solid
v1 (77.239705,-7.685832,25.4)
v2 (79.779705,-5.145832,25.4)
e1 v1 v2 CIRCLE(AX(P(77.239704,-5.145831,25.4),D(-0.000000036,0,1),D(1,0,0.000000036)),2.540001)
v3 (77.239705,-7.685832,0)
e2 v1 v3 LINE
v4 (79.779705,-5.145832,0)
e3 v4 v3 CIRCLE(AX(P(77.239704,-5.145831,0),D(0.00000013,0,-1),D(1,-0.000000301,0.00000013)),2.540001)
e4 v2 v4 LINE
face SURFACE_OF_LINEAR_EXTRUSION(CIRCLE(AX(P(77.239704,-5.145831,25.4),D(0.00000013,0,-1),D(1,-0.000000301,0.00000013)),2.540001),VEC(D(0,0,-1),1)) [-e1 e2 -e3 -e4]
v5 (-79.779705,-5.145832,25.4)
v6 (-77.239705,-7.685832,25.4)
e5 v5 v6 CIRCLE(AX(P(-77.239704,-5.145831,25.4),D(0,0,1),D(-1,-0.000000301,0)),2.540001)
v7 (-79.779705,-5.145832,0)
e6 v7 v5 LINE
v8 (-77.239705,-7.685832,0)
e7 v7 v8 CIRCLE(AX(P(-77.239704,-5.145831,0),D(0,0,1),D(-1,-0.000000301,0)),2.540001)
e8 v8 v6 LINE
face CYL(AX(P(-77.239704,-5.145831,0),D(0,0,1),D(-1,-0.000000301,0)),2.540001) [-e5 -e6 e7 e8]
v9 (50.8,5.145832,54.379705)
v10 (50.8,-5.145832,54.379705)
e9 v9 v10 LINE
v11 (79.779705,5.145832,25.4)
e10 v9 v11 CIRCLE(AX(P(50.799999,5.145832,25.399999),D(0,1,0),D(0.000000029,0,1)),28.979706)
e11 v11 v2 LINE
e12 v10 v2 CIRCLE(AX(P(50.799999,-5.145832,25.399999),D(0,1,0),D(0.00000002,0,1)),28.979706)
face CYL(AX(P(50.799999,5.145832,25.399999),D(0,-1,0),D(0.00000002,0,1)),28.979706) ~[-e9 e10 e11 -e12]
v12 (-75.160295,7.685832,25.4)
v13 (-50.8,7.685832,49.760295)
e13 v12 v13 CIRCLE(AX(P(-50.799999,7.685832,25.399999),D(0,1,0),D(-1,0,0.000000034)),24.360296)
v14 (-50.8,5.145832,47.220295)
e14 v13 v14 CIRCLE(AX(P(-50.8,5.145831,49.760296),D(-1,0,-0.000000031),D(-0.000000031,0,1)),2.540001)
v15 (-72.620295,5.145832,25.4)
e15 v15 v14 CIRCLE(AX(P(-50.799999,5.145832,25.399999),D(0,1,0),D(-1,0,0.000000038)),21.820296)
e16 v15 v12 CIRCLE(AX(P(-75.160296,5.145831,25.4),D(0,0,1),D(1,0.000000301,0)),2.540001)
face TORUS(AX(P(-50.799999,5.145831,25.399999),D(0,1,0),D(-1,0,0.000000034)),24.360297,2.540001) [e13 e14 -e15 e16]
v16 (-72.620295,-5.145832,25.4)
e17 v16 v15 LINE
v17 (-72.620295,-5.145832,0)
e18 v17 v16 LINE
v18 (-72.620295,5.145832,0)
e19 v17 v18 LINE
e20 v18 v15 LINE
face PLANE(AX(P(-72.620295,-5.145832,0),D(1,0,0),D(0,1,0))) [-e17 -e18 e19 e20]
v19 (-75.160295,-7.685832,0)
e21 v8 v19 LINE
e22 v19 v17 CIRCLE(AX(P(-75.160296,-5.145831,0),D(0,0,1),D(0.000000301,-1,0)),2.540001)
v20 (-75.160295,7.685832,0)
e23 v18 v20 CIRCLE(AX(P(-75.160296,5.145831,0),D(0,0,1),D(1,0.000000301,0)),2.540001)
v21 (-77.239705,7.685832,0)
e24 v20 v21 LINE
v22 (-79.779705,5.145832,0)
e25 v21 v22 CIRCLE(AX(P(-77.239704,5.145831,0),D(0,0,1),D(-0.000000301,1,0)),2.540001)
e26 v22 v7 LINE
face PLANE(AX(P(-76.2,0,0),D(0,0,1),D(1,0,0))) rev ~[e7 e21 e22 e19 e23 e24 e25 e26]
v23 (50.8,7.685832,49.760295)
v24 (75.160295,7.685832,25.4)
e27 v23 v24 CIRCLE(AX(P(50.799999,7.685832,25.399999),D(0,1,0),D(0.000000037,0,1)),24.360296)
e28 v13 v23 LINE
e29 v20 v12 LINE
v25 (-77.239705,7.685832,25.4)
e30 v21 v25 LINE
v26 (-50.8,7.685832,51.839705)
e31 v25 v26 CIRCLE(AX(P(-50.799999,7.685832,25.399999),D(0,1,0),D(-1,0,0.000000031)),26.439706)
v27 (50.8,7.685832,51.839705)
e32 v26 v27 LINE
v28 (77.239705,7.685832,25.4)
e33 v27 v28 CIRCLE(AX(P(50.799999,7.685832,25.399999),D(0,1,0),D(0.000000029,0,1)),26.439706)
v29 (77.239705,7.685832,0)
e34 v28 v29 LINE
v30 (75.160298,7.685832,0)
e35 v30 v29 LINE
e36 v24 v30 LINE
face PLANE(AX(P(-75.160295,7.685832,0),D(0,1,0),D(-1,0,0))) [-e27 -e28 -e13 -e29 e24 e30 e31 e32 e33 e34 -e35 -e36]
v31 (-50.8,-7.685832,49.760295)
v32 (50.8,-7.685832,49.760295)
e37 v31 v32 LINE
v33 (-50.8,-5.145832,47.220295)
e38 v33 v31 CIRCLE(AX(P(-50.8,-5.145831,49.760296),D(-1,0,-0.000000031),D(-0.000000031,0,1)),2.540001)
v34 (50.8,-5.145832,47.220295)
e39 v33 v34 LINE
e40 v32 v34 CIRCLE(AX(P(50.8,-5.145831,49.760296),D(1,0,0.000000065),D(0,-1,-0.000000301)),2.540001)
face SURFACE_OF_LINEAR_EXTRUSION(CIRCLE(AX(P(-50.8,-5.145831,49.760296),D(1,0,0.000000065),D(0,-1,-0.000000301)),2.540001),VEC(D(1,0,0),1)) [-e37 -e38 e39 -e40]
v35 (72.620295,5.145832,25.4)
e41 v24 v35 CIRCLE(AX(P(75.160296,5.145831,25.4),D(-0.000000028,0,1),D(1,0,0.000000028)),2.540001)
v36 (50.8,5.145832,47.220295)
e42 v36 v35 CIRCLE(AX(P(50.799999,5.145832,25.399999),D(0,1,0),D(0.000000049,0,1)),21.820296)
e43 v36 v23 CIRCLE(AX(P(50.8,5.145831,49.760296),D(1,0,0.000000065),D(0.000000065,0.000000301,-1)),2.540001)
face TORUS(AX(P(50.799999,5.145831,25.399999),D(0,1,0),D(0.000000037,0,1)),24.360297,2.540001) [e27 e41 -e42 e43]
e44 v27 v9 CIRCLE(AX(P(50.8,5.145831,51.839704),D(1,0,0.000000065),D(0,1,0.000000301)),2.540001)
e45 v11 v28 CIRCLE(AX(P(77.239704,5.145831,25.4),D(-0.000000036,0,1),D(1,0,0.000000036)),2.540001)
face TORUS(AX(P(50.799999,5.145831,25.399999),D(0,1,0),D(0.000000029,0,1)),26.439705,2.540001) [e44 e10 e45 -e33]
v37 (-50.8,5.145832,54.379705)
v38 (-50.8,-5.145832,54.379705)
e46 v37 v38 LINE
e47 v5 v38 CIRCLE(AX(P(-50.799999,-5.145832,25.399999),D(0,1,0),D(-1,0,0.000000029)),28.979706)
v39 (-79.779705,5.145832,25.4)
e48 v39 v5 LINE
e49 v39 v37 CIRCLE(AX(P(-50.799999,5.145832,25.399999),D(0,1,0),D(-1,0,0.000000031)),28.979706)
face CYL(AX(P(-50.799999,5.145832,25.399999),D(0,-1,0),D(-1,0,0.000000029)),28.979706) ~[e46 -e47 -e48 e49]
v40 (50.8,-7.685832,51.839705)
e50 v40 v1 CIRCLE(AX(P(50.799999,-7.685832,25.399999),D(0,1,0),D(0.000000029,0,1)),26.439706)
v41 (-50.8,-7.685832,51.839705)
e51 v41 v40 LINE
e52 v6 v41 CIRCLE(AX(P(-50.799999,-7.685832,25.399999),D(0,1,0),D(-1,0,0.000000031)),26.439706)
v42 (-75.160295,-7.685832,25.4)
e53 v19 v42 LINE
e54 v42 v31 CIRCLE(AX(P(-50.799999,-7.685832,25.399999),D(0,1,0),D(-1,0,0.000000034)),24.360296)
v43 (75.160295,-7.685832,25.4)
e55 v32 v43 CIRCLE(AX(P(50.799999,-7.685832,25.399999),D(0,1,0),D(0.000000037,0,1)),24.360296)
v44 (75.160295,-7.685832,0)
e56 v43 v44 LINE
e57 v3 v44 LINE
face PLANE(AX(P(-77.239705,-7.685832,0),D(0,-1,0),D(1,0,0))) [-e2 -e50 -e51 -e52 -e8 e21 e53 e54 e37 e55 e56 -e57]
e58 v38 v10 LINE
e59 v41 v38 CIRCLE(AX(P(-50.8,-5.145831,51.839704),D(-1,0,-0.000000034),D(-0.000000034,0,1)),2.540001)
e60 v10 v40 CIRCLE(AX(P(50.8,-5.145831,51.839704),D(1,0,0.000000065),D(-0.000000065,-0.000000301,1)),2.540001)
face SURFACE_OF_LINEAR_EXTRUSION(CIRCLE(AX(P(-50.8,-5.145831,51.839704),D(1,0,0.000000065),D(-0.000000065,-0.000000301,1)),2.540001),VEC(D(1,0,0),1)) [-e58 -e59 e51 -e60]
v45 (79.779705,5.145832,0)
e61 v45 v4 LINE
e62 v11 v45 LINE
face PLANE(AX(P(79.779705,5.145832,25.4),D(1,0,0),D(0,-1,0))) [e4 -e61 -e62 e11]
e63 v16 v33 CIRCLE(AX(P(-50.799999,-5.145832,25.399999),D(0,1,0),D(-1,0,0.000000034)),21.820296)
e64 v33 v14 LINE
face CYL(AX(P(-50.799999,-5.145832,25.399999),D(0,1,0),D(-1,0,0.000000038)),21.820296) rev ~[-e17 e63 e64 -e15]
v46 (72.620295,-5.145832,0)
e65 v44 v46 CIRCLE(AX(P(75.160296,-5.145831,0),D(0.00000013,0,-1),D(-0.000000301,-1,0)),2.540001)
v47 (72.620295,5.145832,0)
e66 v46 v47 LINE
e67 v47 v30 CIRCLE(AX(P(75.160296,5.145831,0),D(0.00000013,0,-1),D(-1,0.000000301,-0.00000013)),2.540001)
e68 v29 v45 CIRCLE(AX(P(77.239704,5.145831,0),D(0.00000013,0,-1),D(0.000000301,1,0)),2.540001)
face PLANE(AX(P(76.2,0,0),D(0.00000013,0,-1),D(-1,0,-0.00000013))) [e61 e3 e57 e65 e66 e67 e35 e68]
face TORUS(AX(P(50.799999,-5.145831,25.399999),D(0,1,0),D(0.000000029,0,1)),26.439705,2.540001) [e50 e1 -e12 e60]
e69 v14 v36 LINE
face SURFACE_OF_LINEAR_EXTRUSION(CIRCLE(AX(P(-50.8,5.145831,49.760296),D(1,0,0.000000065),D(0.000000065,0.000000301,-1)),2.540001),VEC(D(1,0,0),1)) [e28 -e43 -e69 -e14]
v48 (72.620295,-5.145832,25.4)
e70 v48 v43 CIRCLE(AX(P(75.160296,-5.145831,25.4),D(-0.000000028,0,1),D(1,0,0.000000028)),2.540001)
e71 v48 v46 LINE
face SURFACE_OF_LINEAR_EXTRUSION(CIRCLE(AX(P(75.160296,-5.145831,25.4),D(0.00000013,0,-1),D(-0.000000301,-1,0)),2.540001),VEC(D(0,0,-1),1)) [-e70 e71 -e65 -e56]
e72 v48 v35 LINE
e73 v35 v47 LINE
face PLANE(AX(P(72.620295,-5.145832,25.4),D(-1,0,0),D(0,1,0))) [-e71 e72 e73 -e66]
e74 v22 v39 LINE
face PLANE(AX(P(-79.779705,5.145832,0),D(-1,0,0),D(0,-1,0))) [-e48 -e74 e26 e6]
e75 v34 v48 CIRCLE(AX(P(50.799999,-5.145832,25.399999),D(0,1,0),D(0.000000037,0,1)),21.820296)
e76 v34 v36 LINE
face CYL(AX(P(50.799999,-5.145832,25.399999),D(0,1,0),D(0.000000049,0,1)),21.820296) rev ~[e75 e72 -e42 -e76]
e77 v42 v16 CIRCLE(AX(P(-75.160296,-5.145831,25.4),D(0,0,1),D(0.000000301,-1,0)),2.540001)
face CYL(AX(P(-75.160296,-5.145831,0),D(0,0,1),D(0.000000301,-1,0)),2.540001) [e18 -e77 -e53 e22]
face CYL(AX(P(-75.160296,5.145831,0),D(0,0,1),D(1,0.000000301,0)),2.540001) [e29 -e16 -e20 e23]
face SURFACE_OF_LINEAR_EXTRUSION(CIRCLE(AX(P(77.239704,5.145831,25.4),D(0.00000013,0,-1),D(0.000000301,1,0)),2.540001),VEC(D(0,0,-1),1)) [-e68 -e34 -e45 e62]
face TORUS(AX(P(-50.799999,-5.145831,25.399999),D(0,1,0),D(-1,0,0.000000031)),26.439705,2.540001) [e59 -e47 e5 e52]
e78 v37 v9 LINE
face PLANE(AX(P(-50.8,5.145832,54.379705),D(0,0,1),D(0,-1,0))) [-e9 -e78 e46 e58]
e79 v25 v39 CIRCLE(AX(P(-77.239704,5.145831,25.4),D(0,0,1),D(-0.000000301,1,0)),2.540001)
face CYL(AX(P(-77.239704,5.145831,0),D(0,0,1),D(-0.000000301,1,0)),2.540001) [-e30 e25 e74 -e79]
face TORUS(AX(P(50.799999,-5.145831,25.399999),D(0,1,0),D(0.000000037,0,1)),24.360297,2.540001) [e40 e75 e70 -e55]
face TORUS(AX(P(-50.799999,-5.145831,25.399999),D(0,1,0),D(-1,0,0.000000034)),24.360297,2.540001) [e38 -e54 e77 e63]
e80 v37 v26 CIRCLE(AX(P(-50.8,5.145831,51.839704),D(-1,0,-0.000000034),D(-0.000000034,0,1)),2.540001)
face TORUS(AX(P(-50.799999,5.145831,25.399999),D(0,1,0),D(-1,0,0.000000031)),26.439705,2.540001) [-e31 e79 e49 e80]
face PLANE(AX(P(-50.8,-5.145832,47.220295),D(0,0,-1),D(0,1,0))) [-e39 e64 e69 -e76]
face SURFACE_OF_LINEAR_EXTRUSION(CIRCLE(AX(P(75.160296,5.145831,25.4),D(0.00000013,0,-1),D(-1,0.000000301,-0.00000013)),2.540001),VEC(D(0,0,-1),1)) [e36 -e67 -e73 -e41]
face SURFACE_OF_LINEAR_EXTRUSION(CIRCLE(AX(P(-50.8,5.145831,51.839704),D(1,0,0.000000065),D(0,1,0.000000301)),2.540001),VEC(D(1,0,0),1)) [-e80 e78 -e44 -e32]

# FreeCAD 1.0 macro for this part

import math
import FreeCAD as App
import Part
import Sketcher
from FreeCAD import Vector
Q = App.Units.Quantity

doc = App.newDocument("Part")
params = doc.addObject("Spreadsheet::Sheet", "Params")
for row, (alias, value) in enumerate([
    ("sketch1_radius", "0.1 in"),
    ("sketch2_radius", "1 in"),
    ("sketch2_width", "4 in"),
    ("sketch2_height", "1 in"),
], start=1):
    params.set(f"A{row}", alias)
    params.set(f"B{row}", "=" + value)
    params.setAlias(f"B{row}", alias)

body = doc.addObject("PartDesign::Body", "Body")

# Sketch on XY plane
sketch1 = doc.addObject("Sketcher::SketchObject", "Sketch")
body.addObject(sketch1)
sketch1.AttachmentSupport = (doc.XY_Plane, [""])
sketch1.MapMode = "FlatFace"
sketch1.addGeometry(Part.LineSegment(Vector(-77.239705, -7.685832, 0), Vector(-75.160295, -7.685832, 0)), False)
sketch1.addGeometry(Part.ArcOfCircle(Part.Circle(Vector(-75.160296, -5.145831, 0), Vector(0, 0, 1), 2.540001), math.radians(-89.999983), math.radians(-0.000017)), False)
sketch1.addGeometry(Part.LineSegment(Vector(-72.620295, -5.145832, 0), Vector(-72.620295, 5.145832, 0)), False)
sketch1.addGeometry(Part.ArcOfCircle(Part.Circle(Vector(-75.160296, 5.145831, 0), Vector(0, 0, 1), 2.540001), math.radians(0.000017), math.radians(89.999983)), False)
sketch1.addGeometry(Part.LineSegment(Vector(-75.160295, 7.685832, 0), Vector(-77.239705, 7.685832, 0)), False)
sketch1.addGeometry(Part.ArcOfCircle(Part.Circle(Vector(-77.239704, 5.145831, 0), Vector(0, 0, 1), 2.540001), math.radians(90.000017), math.radians(179.999983)), False)
sketch1.addGeometry(Part.LineSegment(Vector(-79.779705, 5.145832, 0), Vector(-79.779705, -5.145832, 0)), False)
sketch1.addGeometry(Part.ArcOfCircle(Part.Circle(Vector(-77.239704, -5.145831, 0), Vector(0, 0, 1), 2.540001), math.radians(-179.999983), math.radians(-90.000017)), False)
sketch1.addConstraint(Sketcher.Constraint("Tangent", 0, 2, 1, 1))
sketch1.addConstraint(Sketcher.Constraint("Tangent", 1, 2, 2, 1))
sketch1.addConstraint(Sketcher.Constraint("Tangent", 2, 2, 3, 1))
sketch1.addConstraint(Sketcher.Constraint("Tangent", 3, 2, 4, 1))
sketch1.addConstraint(Sketcher.Constraint("Tangent", 4, 2, 5, 1))
sketch1.addConstraint(Sketcher.Constraint("Tangent", 5, 2, 6, 1))
sketch1.addConstraint(Sketcher.Constraint("Tangent", 6, 2, 7, 1))
sketch1.addConstraint(Sketcher.Constraint("Tangent", 7, 2, 0, 1))
sketch1.addConstraint(Sketcher.Constraint("Horizontal", 0))
sketch1.addConstraint(Sketcher.Constraint("Vertical", 2))
sketch1.addConstraint(Sketcher.Constraint("Horizontal", 4))
sketch1.addConstraint(Sketcher.Constraint("Vertical", 6))
sketch1.addConstraint(Sketcher.Constraint("Equal", 1, 3))
sketch1.addConstraint(Sketcher.Constraint("Equal", 3, 5))
sketch1.addConstraint(Sketcher.Constraint("Equal", 5, 7))
sketch1.addConstraint(Sketcher.Constraint("Radius", 1, Q("0.1 in")))
sketch1.addConstraint(Sketcher.Constraint("DistanceX", 0, 1, 0, 2, Q("2.07941 mm")))
sketch1.addConstraint(Sketcher.Constraint("DistanceY", 2, 1, 2, 2, Q("10.291664 mm")))
sketch1.addConstraint(Sketcher.Constraint("DistanceY", 1, 3, -1, 1, Q("5.145831 mm")))
sketch1.addConstraint(Sketcher.Constraint("DistanceX", 1, 3, -1, 1, Q("75.160296 mm")))
sketch1.setExpression("Constraints[15]", "Params.sketch1_radius")

# Sketch on XZ plane
sketch2 = doc.addObject("Sketcher::SketchObject", "Sketch001")
body.addObject(sketch2)
sketch2.AttachmentSupport = (doc.XZ_Plane, [""])
sketch2.MapMode = "FlatFace"
sketch2.addGeometry(Part.LineSegment(Vector(-76.2, 0, 0), Vector(-76.2, 25.4, 0)), False)
sketch2.addGeometry(Part.ArcOfCircle(Part.Circle(Vector(-50.799999, 25.399999, 0), Vector(0, 0, 1), 25.400001), math.radians(90.000002), math.radians(179.999998)), False)
sketch2.addGeometry(Part.LineSegment(Vector(-50.8, 50.8, 0), Vector(50.8, 50.8, 0)), False)
sketch2.addGeometry(Part.ArcOfCircle(Part.Circle(Vector(50.799999, 25.399999, 0), Vector(0, 0, 1), 25.400001), math.radians(0.000002), math.radians(89.999998)), False)
sketch2.addGeometry(Part.LineSegment(Vector(76.2, 25.4, 0), Vector(76.2, 0, 0)), False)
sketch2.addConstraint(Sketcher.Constraint("Tangent", 0, 2, 1, 2))
sketch2.addConstraint(Sketcher.Constraint("Tangent", 1, 1, 2, 1))
sketch2.addConstraint(Sketcher.Constraint("Tangent", 2, 2, 3, 2))
sketch2.addConstraint(Sketcher.Constraint("Tangent", 3, 1, 4, 1))
sketch2.addConstraint(Sketcher.Constraint("Vertical", 0))
sketch2.addConstraint(Sketcher.Constraint("Horizontal", 2))
sketch2.addConstraint(Sketcher.Constraint("Vertical", 4))
sketch2.addConstraint(Sketcher.Constraint("Equal", 1, 3))
sketch2.addConstraint(Sketcher.Constraint("Symmetric", 0, 1, 4, 2, -1, 1))
sketch2.addConstraint(Sketcher.Constraint("PointOnObject", 0, 1, -1))
sketch2.addConstraint(Sketcher.Constraint("Radius", 1, Q("1 in")))
sketch2.addConstraint(Sketcher.Constraint("DistanceX", 2, 1, 2, 2, Q("4 in")))
sketch2.addConstraint(Sketcher.Constraint("DistanceY", 0, 1, 0, 2, Q("1 in")))
sketch2.setExpression("Constraints[10]", "Params.sketch2_radius")
sketch2.setExpression("Constraints[11]", "Params.sketch2_width")
sketch2.setExpression("Constraints[12]", "Params.sketch2_height")
doc.recompute()

additivepipe = doc.addObject("PartDesign::AdditivePipe", "AdditivePipe")
body.addObject(additivepipe)
additivepipe.Profile = sketch1
additivepipe.Spine = (sketch2, ["Edge1", "Edge2", "Edge3", "Edge4", "Edge5"])

doc.recompute()
